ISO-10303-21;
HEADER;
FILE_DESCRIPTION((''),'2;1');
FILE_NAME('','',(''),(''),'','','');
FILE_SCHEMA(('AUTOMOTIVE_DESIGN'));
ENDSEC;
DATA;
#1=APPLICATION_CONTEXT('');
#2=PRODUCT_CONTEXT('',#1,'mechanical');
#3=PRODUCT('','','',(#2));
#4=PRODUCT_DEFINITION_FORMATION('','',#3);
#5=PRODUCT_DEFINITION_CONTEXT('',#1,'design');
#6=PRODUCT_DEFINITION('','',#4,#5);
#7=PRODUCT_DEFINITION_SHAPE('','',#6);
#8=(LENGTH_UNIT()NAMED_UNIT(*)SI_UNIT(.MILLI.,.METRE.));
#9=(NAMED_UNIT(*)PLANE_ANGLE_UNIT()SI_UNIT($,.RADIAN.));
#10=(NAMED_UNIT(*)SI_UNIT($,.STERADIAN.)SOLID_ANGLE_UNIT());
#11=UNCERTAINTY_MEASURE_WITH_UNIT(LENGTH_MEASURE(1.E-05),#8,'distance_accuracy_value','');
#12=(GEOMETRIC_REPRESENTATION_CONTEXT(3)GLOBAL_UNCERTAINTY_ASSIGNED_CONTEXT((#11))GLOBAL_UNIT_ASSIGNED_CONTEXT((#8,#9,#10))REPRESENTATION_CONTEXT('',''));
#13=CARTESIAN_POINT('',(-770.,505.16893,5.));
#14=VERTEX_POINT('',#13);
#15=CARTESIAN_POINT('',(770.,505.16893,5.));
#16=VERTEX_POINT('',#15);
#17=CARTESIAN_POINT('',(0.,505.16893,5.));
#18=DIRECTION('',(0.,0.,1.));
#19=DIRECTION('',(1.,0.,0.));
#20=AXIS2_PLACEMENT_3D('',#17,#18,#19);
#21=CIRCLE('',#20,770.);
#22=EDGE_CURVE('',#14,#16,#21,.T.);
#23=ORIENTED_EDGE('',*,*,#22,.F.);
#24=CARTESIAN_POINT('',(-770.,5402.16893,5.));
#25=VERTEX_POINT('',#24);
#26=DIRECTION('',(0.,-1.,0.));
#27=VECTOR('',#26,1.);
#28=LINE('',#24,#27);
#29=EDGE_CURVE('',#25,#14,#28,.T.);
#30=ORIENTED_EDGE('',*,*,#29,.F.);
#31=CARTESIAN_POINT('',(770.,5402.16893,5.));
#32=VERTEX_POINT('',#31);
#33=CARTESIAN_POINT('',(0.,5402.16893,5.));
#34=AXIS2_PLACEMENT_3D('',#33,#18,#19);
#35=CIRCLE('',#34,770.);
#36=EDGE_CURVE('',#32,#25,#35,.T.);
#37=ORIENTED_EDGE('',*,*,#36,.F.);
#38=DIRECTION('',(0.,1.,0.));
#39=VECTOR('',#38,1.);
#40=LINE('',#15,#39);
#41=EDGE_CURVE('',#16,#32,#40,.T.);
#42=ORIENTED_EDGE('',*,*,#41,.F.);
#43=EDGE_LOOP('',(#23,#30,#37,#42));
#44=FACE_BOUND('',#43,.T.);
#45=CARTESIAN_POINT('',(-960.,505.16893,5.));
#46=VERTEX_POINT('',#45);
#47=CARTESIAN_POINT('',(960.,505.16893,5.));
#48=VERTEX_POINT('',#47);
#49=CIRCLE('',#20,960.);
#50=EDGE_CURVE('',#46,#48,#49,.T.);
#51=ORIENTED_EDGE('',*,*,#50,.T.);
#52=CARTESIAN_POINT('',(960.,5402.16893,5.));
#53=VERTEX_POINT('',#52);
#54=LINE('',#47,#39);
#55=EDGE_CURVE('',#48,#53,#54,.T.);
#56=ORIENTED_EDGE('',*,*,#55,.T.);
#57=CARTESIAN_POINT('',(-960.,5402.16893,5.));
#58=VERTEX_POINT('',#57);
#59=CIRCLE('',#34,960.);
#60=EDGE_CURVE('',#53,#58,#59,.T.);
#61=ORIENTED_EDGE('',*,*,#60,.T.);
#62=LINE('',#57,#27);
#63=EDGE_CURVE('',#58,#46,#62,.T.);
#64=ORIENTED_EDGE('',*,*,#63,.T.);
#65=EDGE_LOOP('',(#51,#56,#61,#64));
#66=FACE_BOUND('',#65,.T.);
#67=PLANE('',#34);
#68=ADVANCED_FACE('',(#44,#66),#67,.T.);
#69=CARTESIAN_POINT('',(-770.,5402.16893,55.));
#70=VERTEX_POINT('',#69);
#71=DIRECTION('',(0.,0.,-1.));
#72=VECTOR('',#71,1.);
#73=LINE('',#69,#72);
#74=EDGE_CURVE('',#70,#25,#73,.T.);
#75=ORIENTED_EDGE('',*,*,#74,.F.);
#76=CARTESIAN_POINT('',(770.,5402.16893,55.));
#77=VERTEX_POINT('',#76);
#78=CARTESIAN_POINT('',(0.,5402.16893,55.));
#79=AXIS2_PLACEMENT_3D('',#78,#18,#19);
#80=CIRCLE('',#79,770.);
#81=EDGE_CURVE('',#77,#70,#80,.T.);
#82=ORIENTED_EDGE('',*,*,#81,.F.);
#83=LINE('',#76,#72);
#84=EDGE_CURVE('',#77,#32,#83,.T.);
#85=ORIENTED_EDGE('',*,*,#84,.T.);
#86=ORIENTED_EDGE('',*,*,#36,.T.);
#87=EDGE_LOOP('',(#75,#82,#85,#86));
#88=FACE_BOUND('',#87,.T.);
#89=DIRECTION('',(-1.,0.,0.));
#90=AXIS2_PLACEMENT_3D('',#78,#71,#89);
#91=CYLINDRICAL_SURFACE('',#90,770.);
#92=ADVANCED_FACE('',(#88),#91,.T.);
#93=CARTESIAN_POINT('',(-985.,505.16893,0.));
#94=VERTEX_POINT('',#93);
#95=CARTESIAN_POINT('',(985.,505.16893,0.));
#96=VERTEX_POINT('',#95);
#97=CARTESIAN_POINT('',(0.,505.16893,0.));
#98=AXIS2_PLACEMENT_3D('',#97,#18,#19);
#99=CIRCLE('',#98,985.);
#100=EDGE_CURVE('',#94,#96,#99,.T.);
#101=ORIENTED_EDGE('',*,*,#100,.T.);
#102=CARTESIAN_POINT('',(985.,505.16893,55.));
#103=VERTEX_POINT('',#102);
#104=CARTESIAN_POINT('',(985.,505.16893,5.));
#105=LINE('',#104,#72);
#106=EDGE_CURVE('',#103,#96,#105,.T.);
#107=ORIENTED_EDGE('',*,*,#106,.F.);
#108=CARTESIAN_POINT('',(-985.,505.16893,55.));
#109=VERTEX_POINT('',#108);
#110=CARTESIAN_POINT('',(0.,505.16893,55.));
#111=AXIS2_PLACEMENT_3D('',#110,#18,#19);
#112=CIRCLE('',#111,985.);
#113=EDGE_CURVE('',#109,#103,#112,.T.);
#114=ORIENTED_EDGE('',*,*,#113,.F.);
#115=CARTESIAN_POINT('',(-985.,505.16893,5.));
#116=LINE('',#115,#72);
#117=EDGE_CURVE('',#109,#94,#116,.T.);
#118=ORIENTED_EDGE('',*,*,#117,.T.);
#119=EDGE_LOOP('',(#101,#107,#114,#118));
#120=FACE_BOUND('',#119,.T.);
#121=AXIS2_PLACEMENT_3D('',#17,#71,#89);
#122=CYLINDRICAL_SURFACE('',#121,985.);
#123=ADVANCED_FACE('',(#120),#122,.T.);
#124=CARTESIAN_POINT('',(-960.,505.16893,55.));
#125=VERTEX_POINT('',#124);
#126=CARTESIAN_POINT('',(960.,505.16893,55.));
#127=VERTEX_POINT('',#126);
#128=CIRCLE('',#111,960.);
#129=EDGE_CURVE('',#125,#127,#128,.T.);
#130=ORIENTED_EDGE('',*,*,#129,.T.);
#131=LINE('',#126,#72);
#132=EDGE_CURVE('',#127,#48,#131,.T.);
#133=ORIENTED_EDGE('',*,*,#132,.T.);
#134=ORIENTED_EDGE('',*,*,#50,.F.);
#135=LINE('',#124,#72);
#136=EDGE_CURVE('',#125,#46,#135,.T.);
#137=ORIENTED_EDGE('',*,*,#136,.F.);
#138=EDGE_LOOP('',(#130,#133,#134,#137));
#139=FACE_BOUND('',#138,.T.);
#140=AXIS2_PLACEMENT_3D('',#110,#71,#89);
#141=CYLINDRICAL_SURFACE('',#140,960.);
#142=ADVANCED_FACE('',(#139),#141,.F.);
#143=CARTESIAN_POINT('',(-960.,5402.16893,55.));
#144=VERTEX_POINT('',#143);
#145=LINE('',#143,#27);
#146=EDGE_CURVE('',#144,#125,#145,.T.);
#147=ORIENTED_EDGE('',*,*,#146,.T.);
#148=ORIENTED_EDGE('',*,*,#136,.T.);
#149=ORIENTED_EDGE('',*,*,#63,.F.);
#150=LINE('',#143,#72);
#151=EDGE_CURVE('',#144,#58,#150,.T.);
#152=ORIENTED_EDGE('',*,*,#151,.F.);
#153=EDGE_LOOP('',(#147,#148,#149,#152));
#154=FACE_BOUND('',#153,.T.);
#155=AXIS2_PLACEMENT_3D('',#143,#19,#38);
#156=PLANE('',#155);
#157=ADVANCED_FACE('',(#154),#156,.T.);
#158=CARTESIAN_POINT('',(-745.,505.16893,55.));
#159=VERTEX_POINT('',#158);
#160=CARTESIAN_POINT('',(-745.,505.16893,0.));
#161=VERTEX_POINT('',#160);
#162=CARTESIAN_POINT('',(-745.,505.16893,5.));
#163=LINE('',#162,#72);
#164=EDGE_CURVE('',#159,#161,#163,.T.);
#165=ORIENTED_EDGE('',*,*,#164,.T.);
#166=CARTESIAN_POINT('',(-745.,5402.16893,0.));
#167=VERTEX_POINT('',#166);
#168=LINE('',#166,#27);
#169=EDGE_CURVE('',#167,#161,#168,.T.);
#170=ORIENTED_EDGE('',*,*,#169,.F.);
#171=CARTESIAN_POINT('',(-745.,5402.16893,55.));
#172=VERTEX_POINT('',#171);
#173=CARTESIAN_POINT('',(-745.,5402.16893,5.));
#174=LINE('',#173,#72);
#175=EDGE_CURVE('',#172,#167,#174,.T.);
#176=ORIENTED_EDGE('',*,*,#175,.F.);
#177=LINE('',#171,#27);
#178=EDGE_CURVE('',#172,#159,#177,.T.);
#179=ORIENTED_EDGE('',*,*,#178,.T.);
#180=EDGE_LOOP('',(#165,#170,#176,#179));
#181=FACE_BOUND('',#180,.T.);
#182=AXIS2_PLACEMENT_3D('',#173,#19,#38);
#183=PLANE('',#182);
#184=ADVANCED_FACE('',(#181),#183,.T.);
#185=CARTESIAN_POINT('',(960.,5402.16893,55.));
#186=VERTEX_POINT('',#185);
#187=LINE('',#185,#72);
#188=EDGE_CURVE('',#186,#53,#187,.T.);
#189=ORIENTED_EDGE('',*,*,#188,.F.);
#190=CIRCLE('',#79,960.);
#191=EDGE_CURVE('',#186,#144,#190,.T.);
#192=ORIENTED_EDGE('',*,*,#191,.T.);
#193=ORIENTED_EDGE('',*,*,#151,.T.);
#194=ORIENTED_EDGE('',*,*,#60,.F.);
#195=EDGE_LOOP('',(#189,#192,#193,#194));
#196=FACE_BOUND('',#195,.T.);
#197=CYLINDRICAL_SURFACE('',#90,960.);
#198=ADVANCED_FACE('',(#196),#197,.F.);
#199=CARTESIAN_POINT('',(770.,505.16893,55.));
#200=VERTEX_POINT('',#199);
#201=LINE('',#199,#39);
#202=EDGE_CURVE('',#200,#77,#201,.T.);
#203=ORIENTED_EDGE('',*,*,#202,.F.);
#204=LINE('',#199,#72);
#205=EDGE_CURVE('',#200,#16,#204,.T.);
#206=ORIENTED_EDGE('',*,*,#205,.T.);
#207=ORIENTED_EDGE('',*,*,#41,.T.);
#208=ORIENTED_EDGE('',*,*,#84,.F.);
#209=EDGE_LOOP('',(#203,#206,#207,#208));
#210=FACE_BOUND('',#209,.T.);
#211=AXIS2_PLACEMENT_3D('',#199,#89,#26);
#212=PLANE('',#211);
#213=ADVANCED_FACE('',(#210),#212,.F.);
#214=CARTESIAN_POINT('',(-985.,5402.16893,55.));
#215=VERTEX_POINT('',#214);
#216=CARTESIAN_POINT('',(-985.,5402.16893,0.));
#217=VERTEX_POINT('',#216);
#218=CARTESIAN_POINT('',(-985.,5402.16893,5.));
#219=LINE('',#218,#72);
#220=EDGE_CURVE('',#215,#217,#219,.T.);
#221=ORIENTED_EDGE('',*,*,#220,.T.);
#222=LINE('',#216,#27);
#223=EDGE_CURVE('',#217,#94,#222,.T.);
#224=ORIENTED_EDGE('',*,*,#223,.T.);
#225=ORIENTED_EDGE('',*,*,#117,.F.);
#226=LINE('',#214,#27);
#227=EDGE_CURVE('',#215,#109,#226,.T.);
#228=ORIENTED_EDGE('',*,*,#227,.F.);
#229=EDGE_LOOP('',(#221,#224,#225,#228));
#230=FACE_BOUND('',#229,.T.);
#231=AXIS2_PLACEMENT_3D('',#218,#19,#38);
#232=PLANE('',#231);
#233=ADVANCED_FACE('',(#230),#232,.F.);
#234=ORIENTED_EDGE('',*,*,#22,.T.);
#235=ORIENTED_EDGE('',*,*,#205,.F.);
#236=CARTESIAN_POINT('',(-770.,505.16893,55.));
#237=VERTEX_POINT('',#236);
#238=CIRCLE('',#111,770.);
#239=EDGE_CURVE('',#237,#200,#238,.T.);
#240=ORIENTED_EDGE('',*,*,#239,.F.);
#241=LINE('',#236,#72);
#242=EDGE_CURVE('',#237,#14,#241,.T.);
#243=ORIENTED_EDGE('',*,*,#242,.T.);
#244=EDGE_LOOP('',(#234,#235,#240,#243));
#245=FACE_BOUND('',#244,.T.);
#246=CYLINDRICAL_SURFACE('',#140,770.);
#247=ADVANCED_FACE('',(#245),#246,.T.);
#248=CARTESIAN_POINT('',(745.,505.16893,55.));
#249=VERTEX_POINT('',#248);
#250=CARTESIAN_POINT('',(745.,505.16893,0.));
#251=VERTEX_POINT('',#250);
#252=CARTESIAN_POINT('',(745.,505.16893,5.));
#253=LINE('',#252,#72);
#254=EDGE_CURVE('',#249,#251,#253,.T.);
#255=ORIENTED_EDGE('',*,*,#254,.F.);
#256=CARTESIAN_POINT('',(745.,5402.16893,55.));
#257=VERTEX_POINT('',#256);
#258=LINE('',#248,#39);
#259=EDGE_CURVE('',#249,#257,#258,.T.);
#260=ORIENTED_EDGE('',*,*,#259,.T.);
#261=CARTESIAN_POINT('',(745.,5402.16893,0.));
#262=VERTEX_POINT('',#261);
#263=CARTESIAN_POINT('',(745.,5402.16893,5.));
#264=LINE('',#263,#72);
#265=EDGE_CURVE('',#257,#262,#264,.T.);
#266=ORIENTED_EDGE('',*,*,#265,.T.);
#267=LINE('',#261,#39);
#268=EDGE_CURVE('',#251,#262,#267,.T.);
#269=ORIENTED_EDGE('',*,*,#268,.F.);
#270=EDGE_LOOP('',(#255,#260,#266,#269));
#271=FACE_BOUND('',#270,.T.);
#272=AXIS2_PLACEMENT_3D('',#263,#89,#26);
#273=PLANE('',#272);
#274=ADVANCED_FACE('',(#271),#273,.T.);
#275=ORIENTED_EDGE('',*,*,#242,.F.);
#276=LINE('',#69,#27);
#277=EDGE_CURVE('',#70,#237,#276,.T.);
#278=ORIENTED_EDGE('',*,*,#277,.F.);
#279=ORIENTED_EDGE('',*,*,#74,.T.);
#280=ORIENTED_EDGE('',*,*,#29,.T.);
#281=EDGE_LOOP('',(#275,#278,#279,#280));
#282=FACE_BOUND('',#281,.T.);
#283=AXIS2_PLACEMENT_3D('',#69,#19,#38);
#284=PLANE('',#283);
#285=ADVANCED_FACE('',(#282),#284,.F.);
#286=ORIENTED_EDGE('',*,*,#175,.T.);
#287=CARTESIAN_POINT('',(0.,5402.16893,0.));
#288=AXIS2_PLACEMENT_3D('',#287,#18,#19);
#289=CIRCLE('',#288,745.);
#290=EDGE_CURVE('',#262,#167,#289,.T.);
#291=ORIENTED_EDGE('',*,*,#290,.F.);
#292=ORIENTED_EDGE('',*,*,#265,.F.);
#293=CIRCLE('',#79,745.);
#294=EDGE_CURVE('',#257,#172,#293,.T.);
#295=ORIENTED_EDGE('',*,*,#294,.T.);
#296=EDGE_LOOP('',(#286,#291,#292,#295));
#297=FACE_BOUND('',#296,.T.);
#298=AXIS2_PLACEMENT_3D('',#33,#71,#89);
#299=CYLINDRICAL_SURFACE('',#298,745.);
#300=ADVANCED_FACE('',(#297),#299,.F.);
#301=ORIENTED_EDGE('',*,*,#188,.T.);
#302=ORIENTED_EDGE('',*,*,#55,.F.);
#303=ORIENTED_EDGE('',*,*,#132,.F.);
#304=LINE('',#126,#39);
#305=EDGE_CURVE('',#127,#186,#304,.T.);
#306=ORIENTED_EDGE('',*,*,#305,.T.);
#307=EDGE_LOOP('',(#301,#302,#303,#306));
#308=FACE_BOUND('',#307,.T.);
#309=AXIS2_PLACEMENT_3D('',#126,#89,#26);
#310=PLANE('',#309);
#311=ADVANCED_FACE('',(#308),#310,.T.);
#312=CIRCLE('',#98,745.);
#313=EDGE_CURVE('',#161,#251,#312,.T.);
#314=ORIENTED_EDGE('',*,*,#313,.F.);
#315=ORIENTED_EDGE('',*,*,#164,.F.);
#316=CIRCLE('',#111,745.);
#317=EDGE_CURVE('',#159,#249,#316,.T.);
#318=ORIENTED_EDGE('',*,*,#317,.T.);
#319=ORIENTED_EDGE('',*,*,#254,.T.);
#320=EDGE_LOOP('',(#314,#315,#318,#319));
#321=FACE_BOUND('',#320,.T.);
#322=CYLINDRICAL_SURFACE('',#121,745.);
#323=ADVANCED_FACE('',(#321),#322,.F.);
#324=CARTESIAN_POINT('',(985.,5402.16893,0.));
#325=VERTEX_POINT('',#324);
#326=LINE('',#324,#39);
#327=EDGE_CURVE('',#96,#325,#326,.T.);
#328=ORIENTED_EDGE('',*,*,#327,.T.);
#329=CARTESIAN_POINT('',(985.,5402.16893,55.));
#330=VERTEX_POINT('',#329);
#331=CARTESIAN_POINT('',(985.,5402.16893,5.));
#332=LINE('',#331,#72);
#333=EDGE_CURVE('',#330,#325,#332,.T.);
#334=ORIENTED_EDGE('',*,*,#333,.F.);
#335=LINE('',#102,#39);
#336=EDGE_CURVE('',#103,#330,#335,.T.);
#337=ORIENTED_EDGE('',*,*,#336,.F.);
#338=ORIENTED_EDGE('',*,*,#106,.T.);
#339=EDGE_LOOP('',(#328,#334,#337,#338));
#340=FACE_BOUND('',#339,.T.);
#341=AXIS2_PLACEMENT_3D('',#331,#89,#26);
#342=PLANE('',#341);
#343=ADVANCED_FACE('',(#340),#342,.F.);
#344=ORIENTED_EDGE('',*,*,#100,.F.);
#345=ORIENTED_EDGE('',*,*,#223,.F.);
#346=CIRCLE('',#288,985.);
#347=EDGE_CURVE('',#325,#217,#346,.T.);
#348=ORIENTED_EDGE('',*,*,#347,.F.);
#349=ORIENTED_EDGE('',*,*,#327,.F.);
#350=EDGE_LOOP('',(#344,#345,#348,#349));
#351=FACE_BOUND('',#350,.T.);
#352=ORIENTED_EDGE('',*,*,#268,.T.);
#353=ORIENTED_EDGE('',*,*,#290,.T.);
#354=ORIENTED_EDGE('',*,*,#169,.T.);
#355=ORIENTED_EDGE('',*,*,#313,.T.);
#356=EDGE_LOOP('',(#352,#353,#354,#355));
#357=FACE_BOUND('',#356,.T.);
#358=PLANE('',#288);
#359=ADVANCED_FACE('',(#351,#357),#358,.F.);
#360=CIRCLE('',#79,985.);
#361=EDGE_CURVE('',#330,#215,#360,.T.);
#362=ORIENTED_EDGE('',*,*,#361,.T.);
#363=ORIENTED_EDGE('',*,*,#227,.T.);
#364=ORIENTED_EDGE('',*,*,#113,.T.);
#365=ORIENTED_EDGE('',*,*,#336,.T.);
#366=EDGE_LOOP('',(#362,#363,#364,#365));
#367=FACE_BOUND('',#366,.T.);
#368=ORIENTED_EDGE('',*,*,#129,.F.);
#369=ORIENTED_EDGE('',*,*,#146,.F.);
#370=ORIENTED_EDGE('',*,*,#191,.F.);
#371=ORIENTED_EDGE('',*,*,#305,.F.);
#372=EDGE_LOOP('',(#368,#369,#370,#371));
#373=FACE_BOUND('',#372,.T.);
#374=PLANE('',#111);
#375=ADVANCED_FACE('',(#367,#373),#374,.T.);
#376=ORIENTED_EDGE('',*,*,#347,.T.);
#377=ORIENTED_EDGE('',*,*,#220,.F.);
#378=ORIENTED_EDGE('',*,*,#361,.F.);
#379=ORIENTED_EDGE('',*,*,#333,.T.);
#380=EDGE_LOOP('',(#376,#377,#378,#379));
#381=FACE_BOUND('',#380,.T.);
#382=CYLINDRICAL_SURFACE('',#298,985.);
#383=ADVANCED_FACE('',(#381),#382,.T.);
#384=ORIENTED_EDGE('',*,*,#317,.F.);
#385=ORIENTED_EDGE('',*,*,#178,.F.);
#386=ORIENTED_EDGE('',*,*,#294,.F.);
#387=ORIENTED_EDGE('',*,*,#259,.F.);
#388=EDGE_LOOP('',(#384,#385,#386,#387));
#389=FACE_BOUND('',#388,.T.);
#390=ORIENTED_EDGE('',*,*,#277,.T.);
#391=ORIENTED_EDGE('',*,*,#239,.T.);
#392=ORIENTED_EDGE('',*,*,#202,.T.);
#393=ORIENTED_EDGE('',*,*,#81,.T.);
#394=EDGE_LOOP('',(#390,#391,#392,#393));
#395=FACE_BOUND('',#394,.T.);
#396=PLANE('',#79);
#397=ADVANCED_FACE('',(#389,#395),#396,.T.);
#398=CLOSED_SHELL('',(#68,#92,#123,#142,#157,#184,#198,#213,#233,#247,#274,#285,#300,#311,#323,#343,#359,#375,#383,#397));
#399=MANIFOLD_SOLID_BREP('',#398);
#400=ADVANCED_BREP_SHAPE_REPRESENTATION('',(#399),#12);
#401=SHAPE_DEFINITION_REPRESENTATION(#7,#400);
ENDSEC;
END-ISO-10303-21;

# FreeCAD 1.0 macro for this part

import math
import FreeCAD as App
import Part
import Sketcher
Q = App.Units.Quantity

doc = App.newDocument("Part")
body = doc.addObject("PartDesign::Body", "Body")

# Sketch on XY plane
sketch1 = body.newObject("Sketcher::SketchObject", "Sketch")
sketch1.AttachmentSupport = (doc.getObject("XY_Plane"), [""])
sketch1.MapMode = "FlatFace"
sketch1.addGeometry([
    Part.LineSegment(App.Vector(-985, 5402, 0), App.Vector(-985, 505, 0)),  # 0
    Part.ArcOfCircle(Part.Circle(App.Vector(0, 505, 0), App.Vector(0, 0, 1), 985), math.radians(180), math.radians(360)),  # 1
    Part.LineSegment(App.Vector(985, 505, 0), App.Vector(985, 5402, 0)),  # 2
    Part.ArcOfCircle(Part.Circle(App.Vector(0, 5402, 0), App.Vector(0, 0, 1), 985), math.radians(0), math.radians(180)),  # 3
    Part.LineSegment(App.Vector(-745, 505, 0), App.Vector(-745, 5402, 0)),  # 4
    Part.ArcOfCircle(Part.Circle(App.Vector(0, 5402, 0), App.Vector(0, 0, 1), 745), math.radians(0), math.radians(180)),  # 5
    Part.LineSegment(App.Vector(745, 5402, 0), App.Vector(745, 505, 0)),  # 6
    Part.ArcOfCircle(Part.Circle(App.Vector(0, 505, 0), App.Vector(0, 0, 1), 745), math.radians(180), math.radians(360)),  # 7
], False)
sketch1.addConstraint([
    Sketcher.Constraint("Coincident", 0, 2, 1, 1),
    Sketcher.Constraint("Coincident", 1, 2, 2, 1),
    Sketcher.Constraint("Coincident", 2, 2, 3, 1),
    Sketcher.Constraint("Coincident", 3, 2, 0, 1),
    Sketcher.Constraint("Coincident", 4, 2, 5, 2),
    Sketcher.Constraint("Coincident", 5, 1, 6, 1),
    Sketcher.Constraint("Coincident", 6, 2, 7, 2),
    Sketcher.Constraint("Coincident", 7, 1, 4, 1),
    Sketcher.Constraint("Vertical", 0),
    Sketcher.Constraint("Vertical", 2),
    Sketcher.Constraint("Vertical", 4),
    Sketcher.Constraint("Vertical", 6),
    Sketcher.Constraint("Coincident", 5, 3, 3, 3),
    Sketcher.Constraint("PointOnObject", 1, 3, -2),
    Sketcher.Constraint("Horizontal", 7, 3, 0, 2),
    Sketcher.Constraint("Horizontal", 5, 3, 2, 2),
    Sketcher.Constraint("Equal", 0, 2),
    Sketcher.Constraint("Equal", 2, 4),
    Sketcher.Constraint("Equal", 4, 6),
    Sketcher.Constraint("Radius", 1, Q("985 mm")),
    Sketcher.Constraint("Radius", 5, Q("745 mm")),
    Sketcher.Constraint("DistanceY", 0, 2, 0, 1, Q("4897 mm")),
    Sketcher.Constraint("DistanceY", 1, 3, 3, 3, Q("4897 mm")),
    Sketcher.Constraint("DistanceY", 7, 3, 3, 3, Q("4897 mm")),
    Sketcher.Constraint("DistanceY", 0, 2, 4, 2, Q("4897 mm")),
    Sketcher.Constraint("DistanceY", -1, 1, 1, 3, Q("505.16893 mm")),
    Sketcher.Constraint("DistanceY", -1, 1, 6, 2, Q("505.16893 mm")),
])
pad1 = body.newObject("PartDesign::Pad", "Pad")
pad1.Profile = sketch1
pad1.Length = 5

# Sketch on XY plane
sketch2 = body.newObject("Sketcher::SketchObject", "Sketch001")
sketch2.AttachmentSupport = (doc.getObject("XY_Plane"), [""])
sketch2.MapMode = "FlatFace"
sketch2.AttachmentOffset = App.Placement(App.Vector(0, 0, 5), App.Rotation())
sketch2.addGeometry([
    Part.LineSegment(App.Vector(-770, 5402, 0), App.Vector(-770, 505, 0)),  # 0
    Part.ArcOfCircle(Part.Circle(App.Vector(0, 505, 0), App.Vector(0, 0, 1), 770), math.radians(180), math.radians(360)),  # 1
    Part.LineSegment(App.Vector(770, 505, 0), App.Vector(770, 5402, 0)),  # 2
    Part.ArcOfCircle(Part.Circle(App.Vector(0, 5402, 0), App.Vector(0, 0, 1), 770), math.radians(0), math.radians(180)),  # 3
    Part.LineSegment(App.Vector(745, 5402, 0), App.Vector(745, 505, 0)),  # 4
    Part.ArcOfCircle(Part.Circle(App.Vector(0, 505, 0), App.Vector(0, 0, 1), 745), math.radians(180), math.radians(360)),  # 5
    Part.LineSegment(App.Vector(-745, 505, 0), App.Vector(-745, 5402, 0)),  # 6
    Part.ArcOfCircle(Part.Circle(App.Vector(0, 5402, 0), App.Vector(0, 0, 1), 745), math.radians(0), math.radians(180)),  # 7
], False)
sketch2.addConstraint([
    Sketcher.Constraint("Coincident", 0, 2, 1, 1),
    Sketcher.Constraint("Coincident", 1, 2, 2, 1),
    Sketcher.Constraint("Coincident", 2, 2, 3, 1),
    Sketcher.Constraint("Coincident", 3, 2, 0, 1),
    Sketcher.Constraint("Coincident", 4, 2, 5, 2),
    Sketcher.Constraint("Coincident", 5, 1, 6, 1),
    Sketcher.Constraint("Coincident", 6, 2, 7, 2),
    Sketcher.Constraint("Coincident", 7, 1, 4, 1),
    Sketcher.Constraint("Vertical", 0),
    Sketcher.Constraint("Vertical", 2),
    Sketcher.Constraint("Vertical", 4),
    Sketcher.Constraint("Vertical", 6),
    Sketcher.Constraint("Coincident", 5, 3, 1, 3),
    Sketcher.Constraint("PointOnObject", 1, 3, -2),
    Sketcher.Constraint("Horizontal", 5, 3, 0, 2),
    Sketcher.Constraint("Horizontal", 7, 3, 2, 2),
    Sketcher.Constraint("Equal", 0, 2),
    Sketcher.Constraint("Equal", 2, 4),
    Sketcher.Constraint("Equal", 4, 6),
    Sketcher.Constraint("Radius", 1, Q("770 mm")),
    Sketcher.Constraint("Radius", 5, Q("745 mm")),
    Sketcher.Constraint("DistanceY", 0, 2, 0, 1, Q("4897 mm")),
    Sketcher.Constraint("DistanceY", 1, 3, 3, 3, Q("4897 mm")),
    Sketcher.Constraint("DistanceY", 1, 3, 7, 3, Q("4897 mm")),
    Sketcher.Constraint("DistanceY", 4, 2, 2, 2, Q("4897 mm")),
    Sketcher.Constraint("DistanceY", -1, 1, 1, 3, Q("505.16893 mm")),
    Sketcher.Constraint("DistanceY", -1, 1, 6, 2, Q("5402.16893 mm")),
])
pad2 = body.newObject("PartDesign::Pad", "Pad001")
pad2.Profile = sketch2
pad2.Length = 50

# Sketch on XY plane
sketch3 = body.newObject("Sketcher::SketchObject", "Sketch002")
sketch3.AttachmentSupport = (doc.getObject("XY_Plane"), [""])
sketch3.MapMode = "FlatFace"
sketch3.AttachmentOffset = App.Placement(App.Vector(0, 0, 5), App.Rotation())
sketch3.addGeometry([
    Part.LineSegment(App.Vector(985, 505, 0), App.Vector(985, 5402, 0)),  # 0
    Part.ArcOfCircle(Part.Circle(App.Vector(0, 5402, 0), App.Vector(0, 0, 1), 985), math.radians(0), math.radians(180)),  # 1
    Part.LineSegment(App.Vector(-985, 5402, 0), App.Vector(-985, 505, 0)),  # 2
    Part.ArcOfCircle(Part.Circle(App.Vector(0, 505, 0), App.Vector(0, 0, 1), 985), math.radians(180), math.radians(360)),  # 3
    Part.LineSegment(App.Vector(-960, 505, 0), App.Vector(-960, 5402, 0)),  # 4
    Part.ArcOfCircle(Part.Circle(App.Vector(0, 5402, 0), App.Vector(0, 0, 1), 960), math.radians(0), math.radians(180)),  # 5
    Part.LineSegment(App.Vector(960, 5402, 0), App.Vector(960, 505, 0)),  # 6
    Part.ArcOfCircle(Part.Circle(App.Vector(0, 505, 0), App.Vector(0, 0, 1), 960), math.radians(180), math.radians(360)),  # 7
], False)
sketch3.addConstraint([
    Sketcher.Constraint("Coincident", 0, 2, 1, 1),
    Sketcher.Constraint("Coincident", 1, 2, 2, 1),
    Sketcher.Constraint("Coincident", 2, 2, 3, 1),
    Sketcher.Constraint("Coincident", 3, 2, 0, 1),
    Sketcher.Constraint("Coincident", 4, 2, 5, 2),
    Sketcher.Constraint("Coincident", 5, 1, 6, 1),
    Sketcher.Constraint("Coincident", 6, 2, 7, 2),
    Sketcher.Constraint("Coincident", 7, 1, 4, 1),
    Sketcher.Constraint("Vertical", 0),
    Sketcher.Constraint("Vertical", 2),
    Sketcher.Constraint("Vertical", 4),
    Sketcher.Constraint("Vertical", 6),
    Sketcher.Constraint("Coincident", 5, 3, 1, 3),
    Sketcher.Constraint("PointOnObject", 1, 3, -2),
    Sketcher.Constraint("Horizontal", 5, 3, 0, 2),
    Sketcher.Constraint("Horizontal", 7, 3, 2, 2),
    Sketcher.Constraint("Equal", 0, 2),
    Sketcher.Constraint("Equal", 2, 4),
    Sketcher.Constraint("Equal", 4, 6),
    Sketcher.Constraint("Radius", 1, Q("985 mm")),
    Sketcher.Constraint("Radius", 5, Q("960 mm")),
    Sketcher.Constraint("DistanceY", 0, 1, 0, 2, Q("4897 mm")),
    Sketcher.Constraint("DistanceY", 3, 3, 1, 3, Q("4897 mm")),
    Sketcher.Constraint("DistanceY", 7, 3, 1, 3, Q("4897 mm")),
    Sketcher.Constraint("DistanceY", 2, 2, 4, 2, Q("4897 mm")),
    Sketcher.Constraint("DistanceY", -1, 1, 1, 3, Q("5402.16893 mm")),
    Sketcher.Constraint("DistanceY", -1, 1, 6, 2, Q("505.16893 mm")),
])
pad3 = body.newObject("PartDesign::Pad", "Pad002")
pad3.Profile = sketch3
pad3.Length = 50

doc.recompute()
